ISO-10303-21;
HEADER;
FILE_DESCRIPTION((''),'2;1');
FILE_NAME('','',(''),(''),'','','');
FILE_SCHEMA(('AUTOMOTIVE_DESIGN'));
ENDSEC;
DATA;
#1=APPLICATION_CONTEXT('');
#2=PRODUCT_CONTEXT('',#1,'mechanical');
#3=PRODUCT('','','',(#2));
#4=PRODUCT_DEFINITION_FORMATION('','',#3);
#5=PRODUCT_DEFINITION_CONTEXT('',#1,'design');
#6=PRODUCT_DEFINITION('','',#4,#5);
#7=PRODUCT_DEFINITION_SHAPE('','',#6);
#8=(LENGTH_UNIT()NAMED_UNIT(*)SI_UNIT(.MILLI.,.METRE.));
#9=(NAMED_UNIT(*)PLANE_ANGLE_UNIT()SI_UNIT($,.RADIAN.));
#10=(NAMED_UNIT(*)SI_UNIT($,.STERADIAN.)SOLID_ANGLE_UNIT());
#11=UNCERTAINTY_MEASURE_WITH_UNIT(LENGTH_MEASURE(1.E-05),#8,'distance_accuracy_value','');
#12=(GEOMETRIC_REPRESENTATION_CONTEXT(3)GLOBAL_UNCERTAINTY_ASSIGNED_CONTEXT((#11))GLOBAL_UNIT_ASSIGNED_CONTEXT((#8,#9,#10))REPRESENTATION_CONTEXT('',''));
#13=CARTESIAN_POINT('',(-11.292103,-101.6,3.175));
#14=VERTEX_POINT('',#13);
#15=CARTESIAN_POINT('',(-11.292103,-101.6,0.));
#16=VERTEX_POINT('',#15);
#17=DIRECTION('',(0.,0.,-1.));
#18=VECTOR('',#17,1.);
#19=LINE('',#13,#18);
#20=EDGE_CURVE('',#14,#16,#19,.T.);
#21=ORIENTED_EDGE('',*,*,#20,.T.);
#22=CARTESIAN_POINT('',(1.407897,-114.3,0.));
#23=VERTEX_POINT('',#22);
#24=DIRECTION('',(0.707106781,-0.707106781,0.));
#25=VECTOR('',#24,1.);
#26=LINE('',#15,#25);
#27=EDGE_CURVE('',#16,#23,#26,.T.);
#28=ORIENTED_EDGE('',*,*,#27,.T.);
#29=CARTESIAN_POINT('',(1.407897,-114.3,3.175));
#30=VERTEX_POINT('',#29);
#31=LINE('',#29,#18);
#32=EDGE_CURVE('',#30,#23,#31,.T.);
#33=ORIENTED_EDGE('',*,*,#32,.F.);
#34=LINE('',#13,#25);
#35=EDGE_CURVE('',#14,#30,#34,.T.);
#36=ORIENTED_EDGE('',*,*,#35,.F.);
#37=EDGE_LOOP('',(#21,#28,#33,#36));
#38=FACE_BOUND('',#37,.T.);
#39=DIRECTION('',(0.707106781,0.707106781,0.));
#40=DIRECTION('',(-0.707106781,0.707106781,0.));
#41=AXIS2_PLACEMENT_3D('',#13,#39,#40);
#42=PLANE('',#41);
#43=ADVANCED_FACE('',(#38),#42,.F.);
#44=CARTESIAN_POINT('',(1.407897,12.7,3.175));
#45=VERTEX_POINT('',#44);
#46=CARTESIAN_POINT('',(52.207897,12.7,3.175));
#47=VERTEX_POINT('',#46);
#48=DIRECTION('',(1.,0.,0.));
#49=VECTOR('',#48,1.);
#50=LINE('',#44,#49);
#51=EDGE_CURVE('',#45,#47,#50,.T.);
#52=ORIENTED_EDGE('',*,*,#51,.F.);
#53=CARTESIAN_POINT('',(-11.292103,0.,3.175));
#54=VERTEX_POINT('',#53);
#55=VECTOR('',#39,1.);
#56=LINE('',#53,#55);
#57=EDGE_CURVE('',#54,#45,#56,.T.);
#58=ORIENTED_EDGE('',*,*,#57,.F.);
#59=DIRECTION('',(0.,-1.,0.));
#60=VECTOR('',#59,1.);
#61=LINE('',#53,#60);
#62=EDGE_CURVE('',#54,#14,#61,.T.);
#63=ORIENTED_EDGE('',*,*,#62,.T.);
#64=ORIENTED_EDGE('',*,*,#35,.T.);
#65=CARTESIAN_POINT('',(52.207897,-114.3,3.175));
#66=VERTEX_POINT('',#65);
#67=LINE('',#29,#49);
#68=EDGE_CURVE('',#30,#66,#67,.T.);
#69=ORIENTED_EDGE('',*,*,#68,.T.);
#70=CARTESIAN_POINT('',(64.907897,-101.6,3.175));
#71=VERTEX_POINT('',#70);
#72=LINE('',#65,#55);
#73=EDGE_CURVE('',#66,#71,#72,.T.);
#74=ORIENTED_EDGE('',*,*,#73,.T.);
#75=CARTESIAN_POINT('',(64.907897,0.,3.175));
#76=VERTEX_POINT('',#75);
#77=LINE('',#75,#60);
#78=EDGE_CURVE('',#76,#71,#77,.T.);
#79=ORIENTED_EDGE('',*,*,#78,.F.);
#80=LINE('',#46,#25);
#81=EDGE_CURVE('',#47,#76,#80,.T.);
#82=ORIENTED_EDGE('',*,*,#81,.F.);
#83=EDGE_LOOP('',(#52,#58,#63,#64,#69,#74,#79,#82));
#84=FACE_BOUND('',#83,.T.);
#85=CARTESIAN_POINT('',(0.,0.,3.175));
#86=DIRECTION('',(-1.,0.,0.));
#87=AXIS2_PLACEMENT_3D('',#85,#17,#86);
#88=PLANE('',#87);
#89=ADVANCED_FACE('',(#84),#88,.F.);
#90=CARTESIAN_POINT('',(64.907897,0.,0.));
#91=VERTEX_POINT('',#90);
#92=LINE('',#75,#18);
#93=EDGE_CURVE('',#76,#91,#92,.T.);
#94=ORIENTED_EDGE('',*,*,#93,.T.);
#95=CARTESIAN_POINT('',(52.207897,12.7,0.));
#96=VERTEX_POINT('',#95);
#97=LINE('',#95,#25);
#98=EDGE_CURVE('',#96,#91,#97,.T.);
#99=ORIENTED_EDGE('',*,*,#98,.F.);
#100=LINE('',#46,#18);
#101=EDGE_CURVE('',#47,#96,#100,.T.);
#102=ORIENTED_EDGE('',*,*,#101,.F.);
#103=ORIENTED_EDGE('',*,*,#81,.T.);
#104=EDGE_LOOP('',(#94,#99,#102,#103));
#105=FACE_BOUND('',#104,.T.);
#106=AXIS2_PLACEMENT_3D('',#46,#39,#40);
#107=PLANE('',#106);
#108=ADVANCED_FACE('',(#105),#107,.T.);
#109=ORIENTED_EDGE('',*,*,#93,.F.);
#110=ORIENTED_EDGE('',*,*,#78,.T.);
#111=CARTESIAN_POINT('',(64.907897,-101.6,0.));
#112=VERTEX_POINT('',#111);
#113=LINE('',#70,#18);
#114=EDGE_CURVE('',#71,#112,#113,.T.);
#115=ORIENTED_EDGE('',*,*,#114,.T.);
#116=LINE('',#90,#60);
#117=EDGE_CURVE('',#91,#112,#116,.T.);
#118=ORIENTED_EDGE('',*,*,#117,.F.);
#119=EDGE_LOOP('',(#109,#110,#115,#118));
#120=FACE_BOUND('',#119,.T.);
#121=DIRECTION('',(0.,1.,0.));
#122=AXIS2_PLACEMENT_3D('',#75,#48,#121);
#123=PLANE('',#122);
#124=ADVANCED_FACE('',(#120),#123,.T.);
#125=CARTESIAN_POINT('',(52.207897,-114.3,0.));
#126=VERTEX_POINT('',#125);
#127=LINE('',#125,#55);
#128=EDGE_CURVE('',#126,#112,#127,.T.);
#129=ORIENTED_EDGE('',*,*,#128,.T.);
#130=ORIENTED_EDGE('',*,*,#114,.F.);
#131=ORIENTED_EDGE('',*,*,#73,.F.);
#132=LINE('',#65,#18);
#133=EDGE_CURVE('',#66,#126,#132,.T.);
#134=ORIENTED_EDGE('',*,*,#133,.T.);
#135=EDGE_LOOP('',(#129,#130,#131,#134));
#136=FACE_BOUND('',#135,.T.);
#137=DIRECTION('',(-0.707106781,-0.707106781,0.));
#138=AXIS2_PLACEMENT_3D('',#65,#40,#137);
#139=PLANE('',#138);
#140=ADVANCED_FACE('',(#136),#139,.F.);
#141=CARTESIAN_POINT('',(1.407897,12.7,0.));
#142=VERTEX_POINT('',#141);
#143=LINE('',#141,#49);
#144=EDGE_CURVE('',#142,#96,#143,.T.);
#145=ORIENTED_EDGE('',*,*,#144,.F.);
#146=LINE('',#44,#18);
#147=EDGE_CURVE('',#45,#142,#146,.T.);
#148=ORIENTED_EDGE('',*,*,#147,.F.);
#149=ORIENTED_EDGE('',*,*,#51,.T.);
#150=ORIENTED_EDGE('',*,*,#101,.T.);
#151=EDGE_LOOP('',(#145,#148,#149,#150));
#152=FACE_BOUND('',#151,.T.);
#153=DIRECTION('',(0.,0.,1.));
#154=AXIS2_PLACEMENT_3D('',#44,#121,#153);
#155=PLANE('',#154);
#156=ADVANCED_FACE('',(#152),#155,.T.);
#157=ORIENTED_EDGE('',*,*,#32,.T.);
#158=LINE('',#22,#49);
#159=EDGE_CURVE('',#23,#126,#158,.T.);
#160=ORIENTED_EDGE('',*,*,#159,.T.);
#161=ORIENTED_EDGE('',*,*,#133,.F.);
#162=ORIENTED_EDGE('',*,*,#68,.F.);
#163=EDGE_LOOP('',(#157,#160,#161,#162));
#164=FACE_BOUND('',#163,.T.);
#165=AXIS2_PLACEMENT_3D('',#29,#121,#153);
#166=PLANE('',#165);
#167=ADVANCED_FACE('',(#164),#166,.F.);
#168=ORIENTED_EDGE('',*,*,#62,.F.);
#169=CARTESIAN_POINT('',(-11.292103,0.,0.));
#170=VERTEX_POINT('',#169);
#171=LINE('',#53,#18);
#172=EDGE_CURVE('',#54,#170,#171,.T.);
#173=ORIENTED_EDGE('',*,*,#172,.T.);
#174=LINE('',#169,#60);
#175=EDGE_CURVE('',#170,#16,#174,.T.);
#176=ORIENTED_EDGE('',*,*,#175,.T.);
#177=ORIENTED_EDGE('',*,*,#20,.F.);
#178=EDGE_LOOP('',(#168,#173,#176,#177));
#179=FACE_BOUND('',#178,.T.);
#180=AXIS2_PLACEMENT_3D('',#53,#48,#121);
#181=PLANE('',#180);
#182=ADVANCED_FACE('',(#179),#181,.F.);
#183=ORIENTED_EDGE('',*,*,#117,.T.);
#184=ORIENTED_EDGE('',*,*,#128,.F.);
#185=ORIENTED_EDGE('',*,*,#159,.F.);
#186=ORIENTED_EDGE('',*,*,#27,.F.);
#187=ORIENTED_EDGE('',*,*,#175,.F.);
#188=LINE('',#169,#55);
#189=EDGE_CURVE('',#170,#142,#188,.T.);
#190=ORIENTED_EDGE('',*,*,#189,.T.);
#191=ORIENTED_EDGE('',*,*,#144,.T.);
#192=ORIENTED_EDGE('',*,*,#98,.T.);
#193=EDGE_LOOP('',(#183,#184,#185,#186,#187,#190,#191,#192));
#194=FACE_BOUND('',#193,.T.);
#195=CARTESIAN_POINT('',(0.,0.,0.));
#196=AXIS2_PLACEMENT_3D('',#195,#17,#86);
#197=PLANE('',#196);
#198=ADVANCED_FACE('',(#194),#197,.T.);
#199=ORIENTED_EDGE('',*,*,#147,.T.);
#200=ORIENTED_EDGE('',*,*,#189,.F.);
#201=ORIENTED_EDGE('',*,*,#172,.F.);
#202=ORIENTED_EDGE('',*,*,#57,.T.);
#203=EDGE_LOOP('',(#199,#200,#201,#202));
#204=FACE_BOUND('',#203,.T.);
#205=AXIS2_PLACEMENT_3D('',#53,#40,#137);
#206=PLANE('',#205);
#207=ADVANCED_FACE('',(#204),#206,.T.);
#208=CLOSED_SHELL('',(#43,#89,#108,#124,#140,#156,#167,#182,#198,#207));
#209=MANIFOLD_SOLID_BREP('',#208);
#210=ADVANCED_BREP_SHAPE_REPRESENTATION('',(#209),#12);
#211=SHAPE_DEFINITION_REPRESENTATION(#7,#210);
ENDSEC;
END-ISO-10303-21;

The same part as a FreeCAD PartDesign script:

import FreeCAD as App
import Part
import Sketcher
from FreeCAD import Vector
Q = App.Units.Quantity


def add_polygon(sketch, points):
    """Adds a closed chain of lines whose ends are joined by coincident constraints."""
    first, n = sketch.GeometryCount, len(points)
    for a, b in zip(points, points[1:] + points[:1]):
        sketch.addGeometry(Part.LineSegment(App.Vector(*a, 0), App.Vector(*b, 0)), False)
    for i in range(n):
        sketch.addConstraint(Sketcher.Constraint("Coincident", first + i, 2, first + (i + 1) % n, 1))

doc = App.newDocument("Part")
params = doc.addObject("Spreadsheet::Sheet", "Params")
for row, (alias, value) in enumerate([
    ("sketch1_width", "2 in"),
    ("sketch1_height", "4 in"),
    ("pad1_length", "0.125 in"),
], start=1):
    params.set(f"A{row}", alias)
    params.set(f"B{row}", "=" + value)
    params.setAlias(f"B{row}", alias)

body = doc.addObject("PartDesign::Body", "Body")

sketch1 = body.newObject("Sketcher::SketchObject", "Sketch")
sketch1.AttachmentSupport = (doc.getObject("XY_Plane"), [""])
sketch1.MapMode = "FlatFace"
add_polygon(sketch1, [(1, 13), (-11, 0), (-11, -102), (1, -114), (52, -114), (65, -102), (65, 0), (52, 13)])
sketch1.addConstraint([
    Sketcher.Constraint("Vertical", 1),
    Sketcher.Constraint("Horizontal", 3),
    Sketcher.Constraint("Vertical", 5),
    Sketcher.Constraint("Horizontal", 7),
    Sketcher.Constraint("PointOnObject", 0, 2, -1),
    Sketcher.Constraint("PointOnObject", 5, 2, -1),
    Sketcher.Constraint("Perpendicular", 0, 2),
    Sketcher.Constraint("Perpendicular", 2, 4),
    Sketcher.Constraint("Perpendicular", 4, 6),
    Sketcher.Constraint("Horizontal", 1, 2, 4, 2),
    Sketcher.Constraint("Vertical", 3, 2, 6, 2),
    Sketcher.Constraint("Vertical", 2, 2, 7, 2),
    Sketcher.Constraint("DistanceX", 3, 1, 3, 2, Q("2 in")),
    Sketcher.Constraint("DistanceY", 1, 2, 1, 1, Q("4 in")),
    Sketcher.Constraint("DistanceX", 1, 2, 4, 2, Q("3 in")),
    Sketcher.Constraint("DistanceX", 0, 2, -1, 1, 11.292103),
])
sketch1.setExpression("Constraints[20]", "Params.sketch1_width")
sketch1.setExpression("Constraints[21]", "Params.sketch1_height")
pad1 = body.newObject("PartDesign::Pad", "Pad")
pad1.Profile = sketch1
pad1.setExpression("Length", "Params.pad1_length")

doc.recompute()
